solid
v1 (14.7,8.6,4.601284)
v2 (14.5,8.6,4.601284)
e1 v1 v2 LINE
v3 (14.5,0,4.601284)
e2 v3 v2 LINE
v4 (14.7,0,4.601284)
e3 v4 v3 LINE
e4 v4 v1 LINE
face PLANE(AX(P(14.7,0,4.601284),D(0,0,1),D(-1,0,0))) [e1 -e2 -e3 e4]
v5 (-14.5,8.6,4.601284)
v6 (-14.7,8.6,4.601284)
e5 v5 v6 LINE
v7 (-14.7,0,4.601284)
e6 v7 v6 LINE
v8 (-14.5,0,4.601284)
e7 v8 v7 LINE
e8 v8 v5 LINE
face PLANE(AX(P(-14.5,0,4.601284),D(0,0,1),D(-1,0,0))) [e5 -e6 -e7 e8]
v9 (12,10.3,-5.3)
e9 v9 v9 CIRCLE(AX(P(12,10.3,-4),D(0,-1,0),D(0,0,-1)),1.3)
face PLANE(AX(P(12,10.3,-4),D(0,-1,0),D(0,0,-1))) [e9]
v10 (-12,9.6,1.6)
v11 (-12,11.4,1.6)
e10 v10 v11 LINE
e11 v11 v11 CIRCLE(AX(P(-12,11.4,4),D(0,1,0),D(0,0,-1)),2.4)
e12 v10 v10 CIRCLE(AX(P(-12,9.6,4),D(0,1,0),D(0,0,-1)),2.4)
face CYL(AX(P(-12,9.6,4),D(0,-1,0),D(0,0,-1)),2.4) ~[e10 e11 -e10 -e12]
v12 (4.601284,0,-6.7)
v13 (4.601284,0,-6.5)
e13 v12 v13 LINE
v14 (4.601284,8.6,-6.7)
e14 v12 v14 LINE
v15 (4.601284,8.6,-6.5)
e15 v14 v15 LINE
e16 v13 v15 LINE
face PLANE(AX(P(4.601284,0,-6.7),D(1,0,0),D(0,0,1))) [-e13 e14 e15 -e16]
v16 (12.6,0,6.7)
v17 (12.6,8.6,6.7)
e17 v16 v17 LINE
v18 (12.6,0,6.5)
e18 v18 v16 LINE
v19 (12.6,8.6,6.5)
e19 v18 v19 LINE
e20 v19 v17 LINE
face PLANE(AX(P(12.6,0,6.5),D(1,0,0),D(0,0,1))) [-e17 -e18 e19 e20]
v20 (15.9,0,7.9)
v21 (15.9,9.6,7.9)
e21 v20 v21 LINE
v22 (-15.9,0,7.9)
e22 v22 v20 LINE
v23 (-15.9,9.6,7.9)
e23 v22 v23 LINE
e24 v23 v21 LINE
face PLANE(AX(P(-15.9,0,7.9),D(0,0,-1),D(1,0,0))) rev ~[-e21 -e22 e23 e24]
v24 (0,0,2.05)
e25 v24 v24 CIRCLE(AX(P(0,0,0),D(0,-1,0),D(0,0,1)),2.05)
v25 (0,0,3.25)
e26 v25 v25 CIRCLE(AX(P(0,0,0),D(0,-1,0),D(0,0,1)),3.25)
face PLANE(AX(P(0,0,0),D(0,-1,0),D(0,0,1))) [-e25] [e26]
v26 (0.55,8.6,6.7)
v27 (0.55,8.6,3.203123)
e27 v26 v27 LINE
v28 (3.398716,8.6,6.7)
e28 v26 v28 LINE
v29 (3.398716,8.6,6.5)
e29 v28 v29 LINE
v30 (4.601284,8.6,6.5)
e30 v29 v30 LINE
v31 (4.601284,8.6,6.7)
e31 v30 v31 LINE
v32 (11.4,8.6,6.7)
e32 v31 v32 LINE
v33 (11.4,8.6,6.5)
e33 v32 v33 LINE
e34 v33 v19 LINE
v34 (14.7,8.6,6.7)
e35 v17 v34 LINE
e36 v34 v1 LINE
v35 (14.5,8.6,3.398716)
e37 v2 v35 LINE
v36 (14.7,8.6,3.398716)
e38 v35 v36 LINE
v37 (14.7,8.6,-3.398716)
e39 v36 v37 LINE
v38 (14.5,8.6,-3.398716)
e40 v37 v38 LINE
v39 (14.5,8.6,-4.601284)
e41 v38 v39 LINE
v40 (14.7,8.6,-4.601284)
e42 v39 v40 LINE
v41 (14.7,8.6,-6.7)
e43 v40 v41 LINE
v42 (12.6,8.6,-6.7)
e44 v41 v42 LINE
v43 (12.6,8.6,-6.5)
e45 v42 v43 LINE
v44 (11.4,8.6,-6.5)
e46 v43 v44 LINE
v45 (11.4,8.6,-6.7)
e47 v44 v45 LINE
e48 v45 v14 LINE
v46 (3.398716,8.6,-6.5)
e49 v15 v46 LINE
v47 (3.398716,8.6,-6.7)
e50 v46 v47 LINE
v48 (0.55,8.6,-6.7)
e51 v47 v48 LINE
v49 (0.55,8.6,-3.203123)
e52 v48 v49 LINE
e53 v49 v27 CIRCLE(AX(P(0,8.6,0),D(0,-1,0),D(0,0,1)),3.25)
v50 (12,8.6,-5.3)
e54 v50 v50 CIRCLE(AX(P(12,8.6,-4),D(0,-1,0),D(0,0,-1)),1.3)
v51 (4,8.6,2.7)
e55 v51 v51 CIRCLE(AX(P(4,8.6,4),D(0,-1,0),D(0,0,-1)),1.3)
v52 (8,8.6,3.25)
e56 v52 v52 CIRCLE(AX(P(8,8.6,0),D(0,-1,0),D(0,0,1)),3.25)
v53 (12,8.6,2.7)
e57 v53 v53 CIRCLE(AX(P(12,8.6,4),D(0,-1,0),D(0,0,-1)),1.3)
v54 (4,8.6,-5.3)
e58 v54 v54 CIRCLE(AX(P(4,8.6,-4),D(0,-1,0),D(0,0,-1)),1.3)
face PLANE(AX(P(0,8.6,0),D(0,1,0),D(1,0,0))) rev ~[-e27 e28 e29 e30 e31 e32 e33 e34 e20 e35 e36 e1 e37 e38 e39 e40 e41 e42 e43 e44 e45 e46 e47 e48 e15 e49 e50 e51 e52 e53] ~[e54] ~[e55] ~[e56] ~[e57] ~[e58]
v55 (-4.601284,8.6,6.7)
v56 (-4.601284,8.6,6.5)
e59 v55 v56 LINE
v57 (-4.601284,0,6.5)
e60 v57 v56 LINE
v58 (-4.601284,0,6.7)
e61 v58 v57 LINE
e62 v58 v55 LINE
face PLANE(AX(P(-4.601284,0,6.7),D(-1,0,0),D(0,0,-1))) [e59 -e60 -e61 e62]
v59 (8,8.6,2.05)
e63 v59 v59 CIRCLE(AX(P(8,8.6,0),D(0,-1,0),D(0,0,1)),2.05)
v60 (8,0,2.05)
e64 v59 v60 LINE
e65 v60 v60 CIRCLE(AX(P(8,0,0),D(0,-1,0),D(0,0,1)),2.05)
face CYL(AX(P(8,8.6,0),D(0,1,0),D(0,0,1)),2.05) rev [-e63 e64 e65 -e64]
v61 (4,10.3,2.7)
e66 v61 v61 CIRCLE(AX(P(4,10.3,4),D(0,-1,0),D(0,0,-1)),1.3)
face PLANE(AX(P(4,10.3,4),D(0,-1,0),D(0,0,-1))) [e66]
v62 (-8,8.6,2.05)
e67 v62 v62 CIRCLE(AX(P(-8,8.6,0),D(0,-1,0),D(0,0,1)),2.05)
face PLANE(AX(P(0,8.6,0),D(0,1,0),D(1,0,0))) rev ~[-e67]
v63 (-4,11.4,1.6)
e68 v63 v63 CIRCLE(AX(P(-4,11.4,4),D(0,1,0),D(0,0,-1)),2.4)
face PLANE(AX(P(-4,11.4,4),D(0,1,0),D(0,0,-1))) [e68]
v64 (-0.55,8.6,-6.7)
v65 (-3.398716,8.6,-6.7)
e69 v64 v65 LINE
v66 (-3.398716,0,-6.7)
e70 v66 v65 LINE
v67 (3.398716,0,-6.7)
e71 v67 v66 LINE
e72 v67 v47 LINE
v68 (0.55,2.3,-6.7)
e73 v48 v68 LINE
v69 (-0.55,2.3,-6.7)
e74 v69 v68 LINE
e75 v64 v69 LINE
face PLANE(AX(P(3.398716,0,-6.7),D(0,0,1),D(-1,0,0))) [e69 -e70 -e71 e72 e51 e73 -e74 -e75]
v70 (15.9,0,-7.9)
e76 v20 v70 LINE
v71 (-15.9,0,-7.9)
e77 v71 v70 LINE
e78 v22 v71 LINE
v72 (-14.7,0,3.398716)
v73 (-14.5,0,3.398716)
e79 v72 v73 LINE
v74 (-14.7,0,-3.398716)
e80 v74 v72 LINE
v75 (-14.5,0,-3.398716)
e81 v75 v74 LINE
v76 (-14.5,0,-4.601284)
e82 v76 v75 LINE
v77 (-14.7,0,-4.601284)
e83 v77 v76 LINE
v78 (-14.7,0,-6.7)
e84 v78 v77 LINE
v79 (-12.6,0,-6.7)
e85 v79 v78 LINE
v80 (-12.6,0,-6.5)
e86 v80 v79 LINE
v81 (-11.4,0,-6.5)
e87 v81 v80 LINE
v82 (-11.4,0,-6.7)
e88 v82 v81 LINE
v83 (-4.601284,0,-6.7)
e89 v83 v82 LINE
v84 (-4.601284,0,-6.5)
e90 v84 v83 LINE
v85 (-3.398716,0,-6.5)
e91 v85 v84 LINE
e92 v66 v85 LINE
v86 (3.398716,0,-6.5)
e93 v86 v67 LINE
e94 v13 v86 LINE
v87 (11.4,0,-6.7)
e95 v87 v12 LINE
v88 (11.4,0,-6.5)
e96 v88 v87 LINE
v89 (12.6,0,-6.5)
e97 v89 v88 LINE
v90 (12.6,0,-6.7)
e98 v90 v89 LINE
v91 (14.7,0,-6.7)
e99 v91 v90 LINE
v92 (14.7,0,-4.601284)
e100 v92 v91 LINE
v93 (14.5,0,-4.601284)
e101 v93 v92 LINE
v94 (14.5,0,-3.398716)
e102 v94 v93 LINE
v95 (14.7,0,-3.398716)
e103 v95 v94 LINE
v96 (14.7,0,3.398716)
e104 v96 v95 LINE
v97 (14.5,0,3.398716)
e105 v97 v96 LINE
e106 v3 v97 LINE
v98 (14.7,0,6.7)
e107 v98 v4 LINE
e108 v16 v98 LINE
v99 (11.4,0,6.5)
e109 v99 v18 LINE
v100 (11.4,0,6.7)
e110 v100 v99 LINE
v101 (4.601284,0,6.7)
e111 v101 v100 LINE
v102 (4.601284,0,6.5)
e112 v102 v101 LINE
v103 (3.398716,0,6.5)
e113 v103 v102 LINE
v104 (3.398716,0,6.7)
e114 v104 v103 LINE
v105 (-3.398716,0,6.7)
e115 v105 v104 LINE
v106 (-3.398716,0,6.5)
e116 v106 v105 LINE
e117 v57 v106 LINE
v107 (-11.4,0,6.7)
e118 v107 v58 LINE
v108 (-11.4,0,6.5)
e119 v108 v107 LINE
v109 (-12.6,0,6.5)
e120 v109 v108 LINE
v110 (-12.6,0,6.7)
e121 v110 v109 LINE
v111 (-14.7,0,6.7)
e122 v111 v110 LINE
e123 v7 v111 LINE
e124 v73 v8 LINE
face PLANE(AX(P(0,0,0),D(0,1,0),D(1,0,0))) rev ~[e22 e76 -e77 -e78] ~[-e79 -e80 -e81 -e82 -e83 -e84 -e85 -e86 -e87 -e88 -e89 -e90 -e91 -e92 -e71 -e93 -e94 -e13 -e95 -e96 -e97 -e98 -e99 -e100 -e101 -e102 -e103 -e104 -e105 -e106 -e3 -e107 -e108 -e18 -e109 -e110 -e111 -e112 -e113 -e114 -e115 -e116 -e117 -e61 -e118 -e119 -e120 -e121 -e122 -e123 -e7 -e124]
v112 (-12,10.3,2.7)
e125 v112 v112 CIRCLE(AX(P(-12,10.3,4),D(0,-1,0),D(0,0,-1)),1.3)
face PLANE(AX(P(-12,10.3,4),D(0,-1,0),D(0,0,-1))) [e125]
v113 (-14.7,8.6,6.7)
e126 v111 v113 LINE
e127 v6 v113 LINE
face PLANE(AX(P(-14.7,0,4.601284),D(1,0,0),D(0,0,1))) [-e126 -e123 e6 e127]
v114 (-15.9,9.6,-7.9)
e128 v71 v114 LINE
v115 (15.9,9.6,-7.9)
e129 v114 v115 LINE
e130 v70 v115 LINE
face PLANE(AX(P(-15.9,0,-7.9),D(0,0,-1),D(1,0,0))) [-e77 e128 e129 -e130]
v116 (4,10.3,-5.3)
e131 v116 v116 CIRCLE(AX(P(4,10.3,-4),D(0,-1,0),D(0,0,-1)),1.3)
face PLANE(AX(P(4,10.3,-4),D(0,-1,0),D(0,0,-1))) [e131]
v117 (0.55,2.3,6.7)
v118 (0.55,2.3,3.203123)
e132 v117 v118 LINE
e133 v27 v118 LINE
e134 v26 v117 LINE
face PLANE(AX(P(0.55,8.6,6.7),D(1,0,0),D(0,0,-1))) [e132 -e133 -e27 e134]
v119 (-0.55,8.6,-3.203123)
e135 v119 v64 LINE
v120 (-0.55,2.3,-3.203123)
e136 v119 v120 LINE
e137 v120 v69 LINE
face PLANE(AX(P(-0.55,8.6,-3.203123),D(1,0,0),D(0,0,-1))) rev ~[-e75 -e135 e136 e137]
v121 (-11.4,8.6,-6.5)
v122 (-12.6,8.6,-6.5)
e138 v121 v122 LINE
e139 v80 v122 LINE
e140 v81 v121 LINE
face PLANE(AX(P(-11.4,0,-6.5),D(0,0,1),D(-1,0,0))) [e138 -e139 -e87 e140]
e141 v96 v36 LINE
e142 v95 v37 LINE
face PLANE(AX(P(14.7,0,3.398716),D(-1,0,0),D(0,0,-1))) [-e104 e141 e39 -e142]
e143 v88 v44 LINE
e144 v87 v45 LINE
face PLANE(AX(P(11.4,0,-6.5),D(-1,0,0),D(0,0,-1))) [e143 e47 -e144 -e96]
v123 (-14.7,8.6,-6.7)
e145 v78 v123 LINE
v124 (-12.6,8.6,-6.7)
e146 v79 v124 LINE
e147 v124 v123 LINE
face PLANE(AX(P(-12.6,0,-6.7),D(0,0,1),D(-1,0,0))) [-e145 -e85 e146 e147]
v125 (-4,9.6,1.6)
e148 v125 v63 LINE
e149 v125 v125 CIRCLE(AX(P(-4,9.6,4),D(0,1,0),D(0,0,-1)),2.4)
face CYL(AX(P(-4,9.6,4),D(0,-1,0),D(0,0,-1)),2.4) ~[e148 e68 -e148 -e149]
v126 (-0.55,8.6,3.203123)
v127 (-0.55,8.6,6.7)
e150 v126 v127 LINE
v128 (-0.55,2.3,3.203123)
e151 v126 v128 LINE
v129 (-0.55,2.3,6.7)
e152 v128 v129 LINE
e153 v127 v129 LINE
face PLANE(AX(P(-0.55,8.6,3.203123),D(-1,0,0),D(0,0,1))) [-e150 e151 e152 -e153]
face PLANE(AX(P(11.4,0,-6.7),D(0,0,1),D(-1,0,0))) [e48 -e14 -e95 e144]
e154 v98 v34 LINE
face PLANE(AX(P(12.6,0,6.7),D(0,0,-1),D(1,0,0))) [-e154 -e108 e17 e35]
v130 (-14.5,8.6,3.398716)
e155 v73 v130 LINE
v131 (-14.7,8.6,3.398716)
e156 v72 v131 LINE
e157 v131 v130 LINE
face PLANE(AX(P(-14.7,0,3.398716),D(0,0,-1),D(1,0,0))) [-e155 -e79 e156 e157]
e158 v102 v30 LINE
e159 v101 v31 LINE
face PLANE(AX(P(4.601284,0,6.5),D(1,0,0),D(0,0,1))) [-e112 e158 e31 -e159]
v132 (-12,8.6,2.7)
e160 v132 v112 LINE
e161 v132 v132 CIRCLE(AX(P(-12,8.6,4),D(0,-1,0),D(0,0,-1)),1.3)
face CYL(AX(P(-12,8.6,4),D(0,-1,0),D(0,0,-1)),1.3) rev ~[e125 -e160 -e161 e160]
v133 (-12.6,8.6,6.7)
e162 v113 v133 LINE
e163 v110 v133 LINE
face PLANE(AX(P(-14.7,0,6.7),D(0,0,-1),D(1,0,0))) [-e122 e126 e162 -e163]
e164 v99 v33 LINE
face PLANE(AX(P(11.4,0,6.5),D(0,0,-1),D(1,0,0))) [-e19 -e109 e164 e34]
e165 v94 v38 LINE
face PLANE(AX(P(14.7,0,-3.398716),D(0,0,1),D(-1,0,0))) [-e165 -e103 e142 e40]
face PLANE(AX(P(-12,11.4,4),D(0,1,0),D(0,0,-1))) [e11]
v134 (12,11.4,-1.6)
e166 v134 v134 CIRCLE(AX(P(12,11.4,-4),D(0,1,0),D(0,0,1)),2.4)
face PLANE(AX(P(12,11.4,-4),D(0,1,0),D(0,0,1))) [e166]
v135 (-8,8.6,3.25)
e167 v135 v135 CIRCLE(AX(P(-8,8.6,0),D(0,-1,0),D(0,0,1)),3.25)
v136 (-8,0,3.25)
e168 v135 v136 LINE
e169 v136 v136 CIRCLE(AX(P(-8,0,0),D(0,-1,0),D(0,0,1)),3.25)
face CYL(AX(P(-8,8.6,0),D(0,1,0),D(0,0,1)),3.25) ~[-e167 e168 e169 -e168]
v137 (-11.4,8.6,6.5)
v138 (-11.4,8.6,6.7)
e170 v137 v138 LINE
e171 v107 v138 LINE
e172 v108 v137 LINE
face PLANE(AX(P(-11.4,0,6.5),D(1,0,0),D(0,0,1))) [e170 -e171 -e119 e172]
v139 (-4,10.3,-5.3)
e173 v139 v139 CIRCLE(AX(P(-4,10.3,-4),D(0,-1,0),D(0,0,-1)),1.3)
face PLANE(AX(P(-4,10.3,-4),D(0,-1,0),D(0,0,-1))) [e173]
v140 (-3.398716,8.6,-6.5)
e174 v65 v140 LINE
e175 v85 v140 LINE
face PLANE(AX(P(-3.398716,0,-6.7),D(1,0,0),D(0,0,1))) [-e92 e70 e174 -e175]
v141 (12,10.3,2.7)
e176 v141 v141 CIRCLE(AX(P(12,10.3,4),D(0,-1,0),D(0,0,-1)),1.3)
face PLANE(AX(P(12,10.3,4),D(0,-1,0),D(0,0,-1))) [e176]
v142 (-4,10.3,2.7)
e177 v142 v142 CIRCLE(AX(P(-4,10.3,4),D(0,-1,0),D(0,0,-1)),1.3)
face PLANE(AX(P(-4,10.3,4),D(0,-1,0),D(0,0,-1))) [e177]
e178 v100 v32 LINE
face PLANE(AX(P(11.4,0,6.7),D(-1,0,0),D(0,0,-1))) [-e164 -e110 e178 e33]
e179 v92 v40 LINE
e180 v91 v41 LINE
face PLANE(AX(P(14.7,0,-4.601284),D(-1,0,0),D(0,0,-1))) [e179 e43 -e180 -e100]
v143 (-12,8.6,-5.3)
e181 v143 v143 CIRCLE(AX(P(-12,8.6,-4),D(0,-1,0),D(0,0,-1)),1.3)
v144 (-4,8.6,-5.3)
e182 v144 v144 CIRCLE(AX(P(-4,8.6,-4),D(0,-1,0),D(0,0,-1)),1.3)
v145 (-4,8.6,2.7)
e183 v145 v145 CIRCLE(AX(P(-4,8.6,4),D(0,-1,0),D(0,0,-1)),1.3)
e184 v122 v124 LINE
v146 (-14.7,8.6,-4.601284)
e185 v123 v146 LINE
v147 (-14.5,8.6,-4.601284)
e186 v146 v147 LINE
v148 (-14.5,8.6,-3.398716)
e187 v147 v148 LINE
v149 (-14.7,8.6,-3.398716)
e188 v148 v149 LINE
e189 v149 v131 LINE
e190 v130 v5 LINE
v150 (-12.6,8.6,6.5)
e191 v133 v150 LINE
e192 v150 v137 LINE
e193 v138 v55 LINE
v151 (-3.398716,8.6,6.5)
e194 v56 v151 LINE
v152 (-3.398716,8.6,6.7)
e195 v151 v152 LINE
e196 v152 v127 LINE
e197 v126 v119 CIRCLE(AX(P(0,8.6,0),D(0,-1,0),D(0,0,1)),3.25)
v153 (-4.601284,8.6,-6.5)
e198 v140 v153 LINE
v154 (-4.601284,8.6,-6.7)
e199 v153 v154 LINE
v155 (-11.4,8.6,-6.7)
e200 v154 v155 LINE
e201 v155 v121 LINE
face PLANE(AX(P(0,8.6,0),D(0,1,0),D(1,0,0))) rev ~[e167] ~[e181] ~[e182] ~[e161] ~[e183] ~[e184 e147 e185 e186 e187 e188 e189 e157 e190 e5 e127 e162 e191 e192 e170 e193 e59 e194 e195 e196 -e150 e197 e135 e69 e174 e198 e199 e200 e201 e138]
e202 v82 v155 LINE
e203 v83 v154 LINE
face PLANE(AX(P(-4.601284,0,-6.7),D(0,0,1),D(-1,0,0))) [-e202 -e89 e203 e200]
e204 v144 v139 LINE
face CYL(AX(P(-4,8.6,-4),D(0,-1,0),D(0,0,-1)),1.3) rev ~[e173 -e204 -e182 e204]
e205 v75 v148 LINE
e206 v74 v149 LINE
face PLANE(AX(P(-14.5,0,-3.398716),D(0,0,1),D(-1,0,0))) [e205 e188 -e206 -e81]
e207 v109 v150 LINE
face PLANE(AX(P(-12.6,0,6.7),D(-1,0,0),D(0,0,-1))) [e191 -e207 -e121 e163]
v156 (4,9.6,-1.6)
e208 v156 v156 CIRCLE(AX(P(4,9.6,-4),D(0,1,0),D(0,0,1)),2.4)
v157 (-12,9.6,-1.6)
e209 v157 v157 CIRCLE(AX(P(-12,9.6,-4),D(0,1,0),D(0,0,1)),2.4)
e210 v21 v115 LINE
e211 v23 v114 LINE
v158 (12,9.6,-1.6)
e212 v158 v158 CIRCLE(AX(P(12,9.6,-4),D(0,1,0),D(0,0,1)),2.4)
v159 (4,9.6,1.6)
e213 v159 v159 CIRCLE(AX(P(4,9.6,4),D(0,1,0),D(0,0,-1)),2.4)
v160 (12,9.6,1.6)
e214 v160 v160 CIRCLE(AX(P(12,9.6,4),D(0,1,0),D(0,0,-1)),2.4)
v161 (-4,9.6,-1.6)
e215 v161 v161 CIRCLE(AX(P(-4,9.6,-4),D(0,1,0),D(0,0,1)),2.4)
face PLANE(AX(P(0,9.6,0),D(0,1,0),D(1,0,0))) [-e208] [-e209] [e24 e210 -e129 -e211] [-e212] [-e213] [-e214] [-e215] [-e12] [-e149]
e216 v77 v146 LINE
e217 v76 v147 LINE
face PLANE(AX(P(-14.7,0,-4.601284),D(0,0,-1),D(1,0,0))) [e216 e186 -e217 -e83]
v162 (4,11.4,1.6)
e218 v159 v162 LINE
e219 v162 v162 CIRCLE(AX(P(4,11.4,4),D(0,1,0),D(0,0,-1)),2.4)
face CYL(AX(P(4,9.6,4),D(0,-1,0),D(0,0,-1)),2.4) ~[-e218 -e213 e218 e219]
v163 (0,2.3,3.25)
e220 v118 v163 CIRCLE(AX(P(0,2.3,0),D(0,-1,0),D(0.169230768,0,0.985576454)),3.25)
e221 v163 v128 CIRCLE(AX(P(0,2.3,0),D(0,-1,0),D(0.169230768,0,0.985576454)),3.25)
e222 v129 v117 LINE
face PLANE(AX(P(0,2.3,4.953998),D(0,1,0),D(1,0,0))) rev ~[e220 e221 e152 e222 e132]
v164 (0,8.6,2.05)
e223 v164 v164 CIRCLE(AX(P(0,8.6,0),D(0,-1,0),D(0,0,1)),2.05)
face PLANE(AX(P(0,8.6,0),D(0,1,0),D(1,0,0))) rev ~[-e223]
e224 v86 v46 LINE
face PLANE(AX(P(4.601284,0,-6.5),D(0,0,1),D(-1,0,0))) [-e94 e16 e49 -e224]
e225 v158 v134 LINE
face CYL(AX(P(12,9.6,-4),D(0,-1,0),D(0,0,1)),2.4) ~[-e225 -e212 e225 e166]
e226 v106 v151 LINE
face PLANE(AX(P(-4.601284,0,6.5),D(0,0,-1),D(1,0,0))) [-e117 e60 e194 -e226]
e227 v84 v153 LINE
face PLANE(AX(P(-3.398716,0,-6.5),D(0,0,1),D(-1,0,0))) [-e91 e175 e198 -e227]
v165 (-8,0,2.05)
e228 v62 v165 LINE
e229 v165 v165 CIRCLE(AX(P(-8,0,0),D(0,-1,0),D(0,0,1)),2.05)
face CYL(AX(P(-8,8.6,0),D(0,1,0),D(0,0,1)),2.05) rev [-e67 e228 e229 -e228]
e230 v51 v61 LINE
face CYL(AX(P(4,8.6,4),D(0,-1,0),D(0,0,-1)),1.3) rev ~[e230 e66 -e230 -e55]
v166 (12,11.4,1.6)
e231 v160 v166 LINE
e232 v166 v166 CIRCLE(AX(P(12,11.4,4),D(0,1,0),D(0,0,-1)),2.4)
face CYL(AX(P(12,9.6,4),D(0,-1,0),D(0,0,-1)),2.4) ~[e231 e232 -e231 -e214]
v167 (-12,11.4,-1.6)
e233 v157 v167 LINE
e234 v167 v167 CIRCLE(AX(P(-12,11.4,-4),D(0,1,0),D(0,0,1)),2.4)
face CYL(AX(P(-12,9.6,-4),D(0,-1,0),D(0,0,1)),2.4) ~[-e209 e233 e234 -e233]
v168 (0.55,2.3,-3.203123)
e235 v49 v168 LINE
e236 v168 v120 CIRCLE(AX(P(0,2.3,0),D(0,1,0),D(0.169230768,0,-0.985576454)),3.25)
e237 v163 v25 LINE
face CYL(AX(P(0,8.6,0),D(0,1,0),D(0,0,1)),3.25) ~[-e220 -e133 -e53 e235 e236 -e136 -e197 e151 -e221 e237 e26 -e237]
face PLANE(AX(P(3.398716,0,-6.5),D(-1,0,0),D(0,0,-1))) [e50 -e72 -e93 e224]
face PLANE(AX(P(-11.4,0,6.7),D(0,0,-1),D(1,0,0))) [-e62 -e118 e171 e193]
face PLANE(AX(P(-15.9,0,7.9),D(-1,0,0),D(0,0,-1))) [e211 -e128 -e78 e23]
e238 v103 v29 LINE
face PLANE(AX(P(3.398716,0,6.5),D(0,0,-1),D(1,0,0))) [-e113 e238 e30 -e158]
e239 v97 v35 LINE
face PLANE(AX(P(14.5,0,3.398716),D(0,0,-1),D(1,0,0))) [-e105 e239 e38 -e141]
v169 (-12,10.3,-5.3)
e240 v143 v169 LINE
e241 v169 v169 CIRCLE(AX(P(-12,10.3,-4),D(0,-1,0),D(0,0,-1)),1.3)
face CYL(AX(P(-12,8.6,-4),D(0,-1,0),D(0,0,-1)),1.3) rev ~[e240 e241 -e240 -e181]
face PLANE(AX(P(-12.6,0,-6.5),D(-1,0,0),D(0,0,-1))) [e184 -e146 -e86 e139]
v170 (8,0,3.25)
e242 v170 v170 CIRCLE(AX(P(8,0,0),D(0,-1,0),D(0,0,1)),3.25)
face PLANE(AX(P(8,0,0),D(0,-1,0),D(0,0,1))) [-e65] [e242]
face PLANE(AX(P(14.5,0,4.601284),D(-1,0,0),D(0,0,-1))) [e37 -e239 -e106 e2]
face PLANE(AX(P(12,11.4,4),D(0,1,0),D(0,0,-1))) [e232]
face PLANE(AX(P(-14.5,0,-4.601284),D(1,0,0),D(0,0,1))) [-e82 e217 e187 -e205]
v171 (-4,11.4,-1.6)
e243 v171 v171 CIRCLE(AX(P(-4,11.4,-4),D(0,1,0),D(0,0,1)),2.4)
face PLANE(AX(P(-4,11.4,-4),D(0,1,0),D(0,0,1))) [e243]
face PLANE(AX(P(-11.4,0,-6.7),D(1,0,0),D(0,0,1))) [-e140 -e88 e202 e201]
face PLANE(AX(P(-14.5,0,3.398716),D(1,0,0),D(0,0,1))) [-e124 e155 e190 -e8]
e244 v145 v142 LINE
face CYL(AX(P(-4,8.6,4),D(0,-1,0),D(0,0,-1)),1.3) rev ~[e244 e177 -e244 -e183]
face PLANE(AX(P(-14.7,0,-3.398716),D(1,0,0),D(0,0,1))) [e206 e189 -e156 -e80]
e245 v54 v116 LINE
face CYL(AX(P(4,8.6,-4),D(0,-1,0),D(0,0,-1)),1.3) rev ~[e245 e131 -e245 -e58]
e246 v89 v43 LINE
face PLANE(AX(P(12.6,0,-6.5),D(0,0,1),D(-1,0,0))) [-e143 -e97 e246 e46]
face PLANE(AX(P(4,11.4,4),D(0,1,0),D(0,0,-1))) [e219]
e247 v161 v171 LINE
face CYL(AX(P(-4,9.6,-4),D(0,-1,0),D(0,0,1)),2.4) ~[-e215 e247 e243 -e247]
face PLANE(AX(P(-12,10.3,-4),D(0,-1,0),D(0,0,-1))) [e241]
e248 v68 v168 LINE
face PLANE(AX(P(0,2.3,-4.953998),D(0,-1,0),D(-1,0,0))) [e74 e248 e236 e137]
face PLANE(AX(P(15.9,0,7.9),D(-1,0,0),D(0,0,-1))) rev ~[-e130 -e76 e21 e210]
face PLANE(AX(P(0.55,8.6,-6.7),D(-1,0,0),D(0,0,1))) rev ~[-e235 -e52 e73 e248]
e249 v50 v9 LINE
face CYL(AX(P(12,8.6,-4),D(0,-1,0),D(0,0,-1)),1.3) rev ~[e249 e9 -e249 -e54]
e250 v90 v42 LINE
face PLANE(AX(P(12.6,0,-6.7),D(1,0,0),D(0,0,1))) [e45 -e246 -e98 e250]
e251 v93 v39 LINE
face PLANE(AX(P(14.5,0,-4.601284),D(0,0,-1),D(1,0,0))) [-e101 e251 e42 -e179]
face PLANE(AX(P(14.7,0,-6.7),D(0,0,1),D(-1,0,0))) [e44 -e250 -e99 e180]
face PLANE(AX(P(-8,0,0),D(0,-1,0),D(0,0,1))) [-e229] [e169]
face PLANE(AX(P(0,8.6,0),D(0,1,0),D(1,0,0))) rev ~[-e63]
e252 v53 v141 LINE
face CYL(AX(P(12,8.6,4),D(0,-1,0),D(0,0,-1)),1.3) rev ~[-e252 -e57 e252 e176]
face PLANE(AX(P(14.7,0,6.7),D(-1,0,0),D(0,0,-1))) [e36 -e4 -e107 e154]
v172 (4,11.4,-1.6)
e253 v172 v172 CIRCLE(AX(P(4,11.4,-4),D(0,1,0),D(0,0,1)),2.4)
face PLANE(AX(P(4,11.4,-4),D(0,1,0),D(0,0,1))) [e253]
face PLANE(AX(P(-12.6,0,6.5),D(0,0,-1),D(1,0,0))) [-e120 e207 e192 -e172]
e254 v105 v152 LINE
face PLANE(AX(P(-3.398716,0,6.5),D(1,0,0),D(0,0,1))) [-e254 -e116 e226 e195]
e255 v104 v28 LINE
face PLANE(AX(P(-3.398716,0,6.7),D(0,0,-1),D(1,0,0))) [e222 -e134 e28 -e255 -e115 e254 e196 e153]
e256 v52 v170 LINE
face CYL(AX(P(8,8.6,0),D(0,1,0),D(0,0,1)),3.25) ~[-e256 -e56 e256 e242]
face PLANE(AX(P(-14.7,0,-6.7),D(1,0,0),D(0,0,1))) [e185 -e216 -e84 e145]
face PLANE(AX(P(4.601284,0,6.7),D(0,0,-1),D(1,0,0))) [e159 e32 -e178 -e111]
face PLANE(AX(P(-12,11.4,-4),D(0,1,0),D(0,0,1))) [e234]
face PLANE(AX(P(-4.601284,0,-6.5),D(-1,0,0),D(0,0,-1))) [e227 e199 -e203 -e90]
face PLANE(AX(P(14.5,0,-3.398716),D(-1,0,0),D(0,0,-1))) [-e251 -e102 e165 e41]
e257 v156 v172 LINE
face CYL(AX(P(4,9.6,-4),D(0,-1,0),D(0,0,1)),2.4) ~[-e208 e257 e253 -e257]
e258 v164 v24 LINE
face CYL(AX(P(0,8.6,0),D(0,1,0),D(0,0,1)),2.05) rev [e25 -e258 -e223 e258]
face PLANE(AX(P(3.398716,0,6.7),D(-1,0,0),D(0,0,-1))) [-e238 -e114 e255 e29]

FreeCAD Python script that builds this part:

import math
import FreeCAD as App
import Part
import Sketcher
Q = App.Units.Quantity

doc = App.newDocument("Part")
params = doc.addObject("Spreadsheet::Sheet", "Params")
for row, (alias, value) in enumerate([
    ("sketch1_width", "31.8 mm"),
    ("sketch1_height", "15.8 mm"),
    ("pad1_length", "9.6 mm"),
    ("sketch2_diameter", "4.8 mm"),
    ("pad2_length", "1.8 mm"),
    ("sketch3_width", "0.2 mm"),
    ("sketch3_width2", "2.1 mm"),
    ("sketch3_width3", "1.2 mm"),
    ("pocket1_length", "8.6 mm"),
    ("sketch4_diameter", "2.6 mm"),
    ("pocket2_length", "1.7 mm"),
    ("sketch5_diameter", "6.5 mm"),
    ("sketch5_diameter2", "4.1 mm"),
    ("pad3_length", "8.6 mm"),
    ("sketch6_radius", "3.25 mm"),
    ("sketch6_width", "1.1 mm"),
    ("pad4_length", "6.3 mm"),
], start=1):
    params.set(f"A{row}", alias)
    params.set(f"B{row}", "=" + value)
    params.setAlias(f"B{row}", alias)

body = doc.addObject("PartDesign::Body", "Body")

# Sketch on XZ plane
sketch1 = body.newObject("Sketcher::SketchObject", "Sketch")
sketch1.AttachmentSupport = (doc.getObject("XZ_Plane"), [""])
sketch1.MapMode = "FlatFace"
sketch1.addGeometry(Part.LineSegment(App.Vector(-16, -8, 0), App.Vector(-16, 8, 0)), False)
sketch1.addGeometry(Part.LineSegment(App.Vector(-16, 8, 0), App.Vector(16, 8, 0)), False)
sketch1.addGeometry(Part.LineSegment(App.Vector(16, 8, 0), App.Vector(16, -8, 0)), False)
sketch1.addGeometry(Part.LineSegment(App.Vector(16, -8, 0), App.Vector(-16, -8, 0)), False)
sketch1.addConstraint(Sketcher.Constraint("Coincident", 0, 2, 1, 1))
sketch1.addConstraint(Sketcher.Constraint("Coincident", 1, 2, 2, 1))
sketch1.addConstraint(Sketcher.Constraint("Coincident", 2, 2, 3, 1))
sketch1.addConstraint(Sketcher.Constraint("Coincident", 3, 2, 0, 1))
sketch1.addConstraint(Sketcher.Constraint("Vertical", 0))
sketch1.addConstraint(Sketcher.Constraint("Horizontal", 1))
sketch1.addConstraint(Sketcher.Constraint("Vertical", 2))
sketch1.addConstraint(Sketcher.Constraint("Horizontal", 3))
sketch1.addConstraint(Sketcher.Constraint("Symmetric", 0, 2, 2, 2, -1, 1))
sketch1.addConstraint(Sketcher.Constraint("DistanceX", 1, 1, 1, 2, Q("31.8 mm")))
sketch1.addConstraint(Sketcher.Constraint("DistanceY", 0, 1, 0, 2, Q("15.8 mm")))
sketch1.setExpression("Constraints[9]", "Params.sketch1_width")
sketch1.setExpression("Constraints[10]", "Params.sketch1_height")
pad1 = body.newObject("PartDesign::Pad", "Pad")
pad1.Profile = sketch1
pad1.setExpression("Length", "Params.pad1_length")
pad1.Reversed = True

# Sketch on XZ plane
sketch2 = body.newObject("Sketcher::SketchObject", "Sketch001")
sketch2.AttachmentSupport = (doc.getObject("XZ_Plane"), [""])
sketch2.MapMode = "FlatFace"
sketch2.AttachmentOffset = App.Placement(App.Vector(0, 0, -9.6), App.Rotation())
sketch2.addGeometry(Part.Circle(App.Vector(-4, -4, 0), App.Vector(0, 0, 1), 2.4), False)
sketch2.addGeometry(Part.Circle(App.Vector(-12, -4, 0), App.Vector(0, 0, 1), 2.4), False)
sketch2.addGeometry(Part.Circle(App.Vector(4, -4, 0), App.Vector(0, 0, 1), 2.4), False)
sketch2.addGeometry(Part.Circle(App.Vector(12, -4, 0), App.Vector(0, 0, 1), 2.4), False)
sketch2.addGeometry(Part.Circle(App.Vector(12, 4, 0), App.Vector(0, 0, 1), 2.4), False)
sketch2.addGeometry(Part.Circle(App.Vector(4, 4, 0), App.Vector(0, 0, 1), 2.4), False)
sketch2.addGeometry(Part.Circle(App.Vector(-4, 4, 0), App.Vector(0, 0, 1), 2.4), False)
sketch2.addGeometry(Part.Circle(App.Vector(-12, 4, 0), App.Vector(0, 0, 1), 2.4), False)
sketch2.addConstraint(Sketcher.Constraint("Equal", 0, 1))
sketch2.addConstraint(Sketcher.Constraint("Equal", 1, 2))
sketch2.addConstraint(Sketcher.Constraint("Equal", 2, 3))
sketch2.addConstraint(Sketcher.Constraint("Equal", 3, 4))
sketch2.addConstraint(Sketcher.Constraint("Equal", 4, 5))
sketch2.addConstraint(Sketcher.Constraint("Equal", 5, 6))
sketch2.addConstraint(Sketcher.Constraint("Equal", 6, 7))
sketch2.addConstraint(Sketcher.Constraint("Symmetric", 1, 3, 4, 3, -1, 1))
sketch2.addConstraint(Sketcher.Constraint("Symmetric", 0, 3, 5, 3, -1, 1))
sketch2.addConstraint(Sketcher.Constraint("Symmetric", 2, 3, 6, 3, -1, 1))
sketch2.addConstraint(Sketcher.Constraint("Symmetric", 3, 3, 7, 3, -1, 1))
sketch2.addConstraint(Sketcher.Constraint("Symmetric", 0, 3, 2, 3, -2))
sketch2.addConstraint(Sketcher.Constraint("Symmetric", 1, 3, 3, 3, -2))
sketch2.addConstraint(Sketcher.Constraint("Horizontal", 0, 3, 1, 3))
sketch2.addConstraint(Sketcher.Constraint("Diameter", 0, Q("4.8 mm")))
sketch2.addConstraint(Sketcher.Constraint("DistanceX", 0, 3, -1, 1, Q("4 mm")))
sketch2.addConstraint(Sketcher.Constraint("DistanceY", 0, 3, -1, 1, Q("4 mm")))
sketch2.addConstraint(Sketcher.Constraint("DistanceX", 1, 3, -1, 1, Q("12 mm")))
sketch2.setExpression("Constraints[14]", "Params.sketch2_diameter")
pad2 = body.newObject("PartDesign::Pad", "Pad001")
pad2.Profile = sketch2
pad2.setExpression("Length", "Params.pad2_length")
pad2.Reversed = True

# Sketch on XZ plane
sketch3 = body.newObject("Sketcher::SketchObject", "Sketch002")
sketch3.AttachmentSupport = (doc.getObject("XZ_Plane"), [""])
sketch3.MapMode = "FlatFace"
sketch3.addGeometry(Part.LineSegment(App.Vector(-14.7, 3.4, 0), App.Vector(-14.7, -3.4, 0)), False)
sketch3.addGeometry(Part.LineSegment(App.Vector(-14.7, -3.4, 0), App.Vector(-14.5, -3.4, 0)), False)
sketch3.addGeometry(Part.LineSegment(App.Vector(-14.5, -3.4, 0), App.Vector(-14.5, -4.6, 0)), False)
sketch3.addGeometry(Part.LineSegment(App.Vector(-14.5, -4.6, 0), App.Vector(-14.7, -4.6, 0)), False)
sketch3.addGeometry(Part.LineSegment(App.Vector(-14.7, -4.6, 0), App.Vector(-14.7, -6.7, 0)), False)
sketch3.addGeometry(Part.LineSegment(App.Vector(-14.7, -6.7, 0), App.Vector(-12.6, -6.7, 0)), False)
sketch3.addGeometry(Part.LineSegment(App.Vector(-12.6, -6.7, 0), App.Vector(-12.6, -6.5, 0)), False)
sketch3.addGeometry(Part.LineSegment(App.Vector(-12.6, -6.5, 0), App.Vector(-11.4, -6.5, 0)), False)
sketch3.addGeometry(Part.LineSegment(App.Vector(-11.4, -6.5, 0), App.Vector(-11.4, -6.7, 0)), False)
sketch3.addGeometry(Part.LineSegment(App.Vector(-11.4, -6.7, 0), App.Vector(-4.6, -6.7, 0)), False)
sketch3.addGeometry(Part.LineSegment(App.Vector(-4.6, -6.7, 0), App.Vector(-4.6, -6.5, 0)), False)
sketch3.addGeometry(Part.LineSegment(App.Vector(-4.6, -6.5, 0), App.Vector(-3.4, -6.5, 0)), False)
sketch3.addGeometry(Part.LineSegment(App.Vector(-3.4, -6.5, 0), App.Vector(-3.4, -6.7, 0)), False)
sketch3.addGeometry(Part.LineSegment(App.Vector(-3.4, -6.7, 0), App.Vector(3.4, -6.7, 0)), False)
sketch3.addGeometry(Part.LineSegment(App.Vector(3.4, -6.7, 0), App.Vector(3.4, -6.5, 0)), False)
sketch3.addGeometry(Part.LineSegment(App.Vector(3.4, -6.5, 0), App.Vector(4.6, -6.5, 0)), False)
sketch3.addGeometry(Part.LineSegment(App.Vector(4.6, -6.5, 0), App.Vector(4.6, -6.7, 0)), False)
sketch3.addGeometry(Part.LineSegment(App.Vector(4.6, -6.7, 0), App.Vector(11.4, -6.7, 0)), False)
sketch3.addGeometry(Part.LineSegment(App.Vector(11.4, -6.7, 0), App.Vector(11.4, -6.5, 0)), False)
sketch3.addGeometry(Part.LineSegment(App.Vector(11.4, -6.5, 0), App.Vector(12.6, -6.5, 0)), False)
sketch3.addGeometry(Part.LineSegment(App.Vector(12.6, -6.5, 0), App.Vector(12.6, -6.7, 0)), False)
sketch3.addGeometry(Part.LineSegment(App.Vector(12.6, -6.7, 0), App.Vector(14.7, -6.7, 0)), False)
sketch3.addGeometry(Part.LineSegment(App.Vector(14.7, -6.7, 0), App.Vector(14.7, -4.6, 0)), False)
sketch3.addGeometry(Part.LineSegment(App.Vector(14.7, -4.6, 0), App.Vector(14.5, -4.6, 0)), False)
sketch3.addGeometry(Part.LineSegment(App.Vector(14.5, -4.6, 0), App.Vector(14.5, -3.4, 0)), False)
sketch3.addGeometry(Part.LineSegment(App.Vector(14.5, -3.4, 0), App.Vector(14.7, -3.4, 0)), False)
sketch3.addGeometry(Part.LineSegment(App.Vector(14.7, -3.4, 0), App.Vector(14.7, 3.4, 0)), False)
sketch3.addGeometry(Part.LineSegment(App.Vector(14.7, 3.4, 0), App.Vector(14.5, 3.4, 0)), False)
sketch3.addGeometry(Part.LineSegment(App.Vector(14.5, 3.4, 0), App.Vector(14.5, 4.6, 0)), False)
sketch3.addGeometry(Part.LineSegment(App.Vector(14.5, 4.6, 0), App.Vector(14.7, 4.6, 0)), False)
sketch3.addGeometry(Part.LineSegment(App.Vector(14.7, 4.6, 0), App.Vector(14.7, 6.7, 0)), False)
sketch3.addGeometry(Part.LineSegment(App.Vector(14.7, 6.7, 0), App.Vector(12.6, 6.7, 0)), False)
sketch3.addGeometry(Part.LineSegment(App.Vector(12.6, 6.7, 0), App.Vector(12.6, 6.5, 0)), False)
sketch3.addGeometry(Part.LineSegment(App.Vector(12.6, 6.5, 0), App.Vector(11.4, 6.5, 0)), False)
sketch3.addGeometry(Part.LineSegment(App.Vector(11.4, 6.5, 0), App.Vector(11.4, 6.7, 0)), False)
sketch3.addGeometry(Part.LineSegment(App.Vector(11.4, 6.7, 0), App.Vector(4.6, 6.7, 0)), False)
sketch3.addGeometry(Part.LineSegment(App.Vector(4.6, 6.7, 0), App.Vector(4.6, 6.5, 0)), False)
sketch3.addGeometry(Part.LineSegment(App.Vector(4.6, 6.5, 0), App.Vector(3.4, 6.5, 0)), False)
sketch3.addGeometry(Part.LineSegment(App.Vector(3.4, 6.5, 0), App.Vector(3.4, 6.7, 0)), False)
sketch3.addGeometry(Part.LineSegment(App.Vector(3.4, 6.7, 0), App.Vector(-3.4, 6.7, 0)), False)
sketch3.addGeometry(Part.LineSegment(App.Vector(-3.4, 6.7, 0), App.Vector(-3.4, 6.5, 0)), False)
sketch3.addGeometry(Part.LineSegment(App.Vector(-3.4, 6.5, 0), App.Vector(-4.6, 6.5, 0)), False)
sketch3.addGeometry(Part.LineSegment(App.Vector(-4.6, 6.5, 0), App.Vector(-4.6, 6.7, 0)), False)
sketch3.addGeometry(Part.LineSegment(App.Vector(-4.6, 6.7, 0), App.Vector(-11.4, 6.7, 0)), False)
sketch3.addGeometry(Part.LineSegment(App.Vector(-11.4, 6.7, 0), App.Vector(-11.4, 6.5, 0)), False)
sketch3.addGeometry(Part.LineSegment(App.Vector(-11.4, 6.5, 0), App.Vector(-12.6, 6.5, 0)), False)
sketch3.addGeometry(Part.LineSegment(App.Vector(-12.6, 6.5, 0), App.Vector(-12.6, 6.7, 0)), False)
sketch3.addGeometry(Part.LineSegment(App.Vector(-12.6, 6.7, 0), App.Vector(-14.7, 6.7, 0)), False)
sketch3.addGeometry(Part.LineSegment(App.Vector(-14.7, 6.7, 0), App.Vector(-14.7, 4.6, 0)), False)
sketch3.addGeometry(Part.LineSegment(App.Vector(-14.7, 4.6, 0), App.Vector(-14.5, 4.6, 0)), False)
sketch3.addGeometry(Part.LineSegment(App.Vector(-14.5, 4.6, 0), App.Vector(-14.5, 3.4, 0)), False)
sketch3.addGeometry(Part.LineSegment(App.Vector(-14.5, 3.4, 0), App.Vector(-14.7, 3.4, 0)), False)
sketch3.addConstraint(Sketcher.Constraint("Coincident", 0, 2, 1, 1))
sketch3.addConstraint(Sketcher.Constraint("Coincident", 1, 2, 2, 1))
sketch3.addConstraint(Sketcher.Constraint("Coincident", 2, 2, 3, 1))
sketch3.addConstraint(Sketcher.Constraint("Coincident", 3, 2, 4, 1))
sketch3.addConstraint(Sketcher.Constraint("Coincident", 4, 2, 5, 1))
sketch3.addConstraint(Sketcher.Constraint("Coincident", 5, 2, 6, 1))
sketch3.addConstraint(Sketcher.Constraint("Coincident", 6, 2, 7, 1))
sketch3.addConstraint(Sketcher.Constraint("Coincident", 7, 2, 8, 1))
sketch3.addConstraint(Sketcher.Constraint("Coincident", 8, 2, 9, 1))
sketch3.addConstraint(Sketcher.Constraint("Coincident", 9, 2, 10, 1))
sketch3.addConstraint(Sketcher.Constraint("Coincident", 10, 2, 11, 1))
sketch3.addConstraint(Sketcher.Constraint("Coincident", 11, 2, 12, 1))
sketch3.addConstraint(Sketcher.Constraint("Coincident", 12, 2, 13, 1))
sketch3.addConstraint(Sketcher.Constraint("Coincident", 13, 2, 14, 1))
sketch3.addConstraint(Sketcher.Constraint("Coincident", 14, 2, 15, 1))
sketch3.addConstraint(Sketcher.Constraint("Coincident", 15, 2, 16, 1))
sketch3.addConstraint(Sketcher.Constraint("Coincident", 16, 2, 17, 1))
sketch3.addConstraint(Sketcher.Constraint("Coincident", 17, 2, 18, 1))
sketch3.addConstraint(Sketcher.Constraint("Coincident", 18, 2, 19, 1))
sketch3.addConstraint(Sketcher.Constraint("Coincident", 19, 2, 20, 1))
sketch3.addConstraint(Sketcher.Constraint("Coincident", 20, 2, 21, 1))
sketch3.addConstraint(Sketcher.Constraint("Coincident", 21, 2, 22, 1))
sketch3.addConstraint(Sketcher.Constraint("Coincident", 22, 2, 23, 1))
sketch3.addConstraint(Sketcher.Constraint("Coincident", 23, 2, 24, 1))
sketch3.addConstraint(Sketcher.Constraint("Coincident", 24, 2, 25, 1))
sketch3.addConstraint(Sketcher.Constraint("Coincident", 25, 2, 26, 1))
sketch3.addConstraint(Sketcher.Constraint("Coincident", 26, 2, 27, 1))
sketch3.addConstraint(Sketcher.Constraint("Coincident", 27, 2, 28, 1))
sketch3.addConstraint(Sketcher.Constraint("Coincident", 28, 2, 29, 1))
sketch3.addConstraint(Sketcher.Constraint("Coincident", 29, 2, 30, 1))
sketch3.addConstraint(Sketcher.Constraint("Coincident", 30, 2, 31, 1))
sketch3.addConstraint(Sketcher.Constraint("Coincident", 31, 2, 32, 1))
sketch3.addConstraint(Sketcher.Constraint("Coincident", 32, 2, 33, 1))
sketch3.addConstraint(Sketcher.Constraint("Coincident", 33, 2, 34, 1))
sketch3.addConstraint(Sketcher.Constraint("Coincident", 34, 2, 35, 1))
sketch3.addConstraint(Sketcher.Constraint("Coincident", 35, 2, 36, 1))
sketch3.addConstraint(Sketcher.Constraint("Coincident", 36, 2, 37, 1))
sketch3.addConstraint(Sketcher.Constraint("Coincident", 37, 2, 38, 1))
sketch3.addConstraint(Sketcher.Constraint("Coincident", 38, 2, 39, 1))
sketch3.addConstraint(Sketcher.Constraint("Coincident", 39, 2, 40, 1))
sketch3.addConstraint(Sketcher.Constraint("Coincident", 40, 2, 41, 1))
sketch3.addConstraint(Sketcher.Constraint("Coincident", 41, 2, 42, 1))
sketch3.addConstraint(Sketcher.Constraint("Coincident", 42, 2, 43, 1))
sketch3.addConstraint(Sketcher.Constraint("Coincident", 43, 2, 44, 1))
sketch3.addConstraint(Sketcher.Constraint("Coincident", 44, 2, 45, 1))
sketch3.addConstraint(Sketcher.Constraint("Coincident", 45, 2, 46, 1))
sketch3.addConstraint(Sketcher.Constraint("Coincident", 46, 2, 47, 1))
sketch3.addConstraint(Sketcher.Constraint("Coincident", 47, 2, 48, 1))
sketch3.addConstraint(Sketcher.Constraint("Coincident", 48, 2, 49, 1))
sketch3.addConstraint(Sketcher.Constraint("Coincident", 49, 2, 50, 1))
sketch3.addConstraint(Sketcher.Constraint("Coincident", 50, 2, 51, 1))
sketch3.addConstraint(Sketcher.Constraint("Coincident", 51, 2, 0, 1))
sketch3.addConstraint(Sketcher.Constraint("Vertical", 0))
sketch3.addConstraint(Sketcher.Constraint("Horizontal", 1))
sketch3.addConstraint(Sketcher.Constraint("Vertical", 2))
sketch3.addConstraint(Sketcher.Constraint("Horizontal", 3))
sketch3.addConstraint(Sketcher.Constraint("Vertical", 4))
sketch3.addConstraint(Sketcher.Constraint("Horizontal", 5))
sketch3.addConstraint(Sketcher.Constraint("Vertical", 6))
sketch3.addConstraint(Sketcher.Constraint("Horizontal", 7))
sketch3.addConstraint(Sketcher.Constraint("Vertical", 8))
sketch3.addConstraint(Sketcher.Constraint("Horizontal", 9))
sketch3.addConstraint(Sketcher.Constraint("Vertical", 10))
sketch3.addConstraint(Sketcher.Constraint("Horizontal", 11))
sketch3.addConstraint(Sketcher.Constraint("Vertical", 12))
sketch3.addConstraint(Sketcher.Constraint("Horizontal", 13))
sketch3.addConstraint(Sketcher.Constraint("Vertical", 14))
sketch3.addConstraint(Sketcher.Constraint("Horizontal", 15))
sketch3.addConstraint(Sketcher.Constraint("Vertical", 16))
sketch3.addConstraint(Sketcher.Constraint("Horizontal", 17))
sketch3.addConstraint(Sketcher.Constraint("Vertical", 18))
sketch3.addConstraint(Sketcher.Constraint("Horizontal", 19))
sketch3.addConstraint(Sketcher.Constraint("Vertical", 20))
sketch3.addConstraint(Sketcher.Constraint("Horizontal", 21))
sketch3.addConstraint(Sketcher.Constraint("Vertical", 22))
sketch3.addConstraint(Sketcher.Constraint("Horizontal", 23))
sketch3.addConstraint(Sketcher.Constraint("Vertical", 24))
sketch3.addConstraint(Sketcher.Constraint("Horizontal", 25))
sketch3.addConstraint(Sketcher.Constraint("Vertical", 26))
sketch3.addConstraint(Sketcher.Constraint("Horizontal", 27))
sketch3.addConstraint(Sketcher.Constraint("Vertical", 28))
sketch3.addConstraint(Sketcher.Constraint("Horizontal", 29))
sketch3.addConstraint(Sketcher.Constraint("Vertical", 30))
sketch3.addConstraint(Sketcher.Constraint("Horizontal", 31))
sketch3.addConstraint(Sketcher.Constraint("Vertical", 32))
sketch3.addConstraint(Sketcher.Constraint("Horizontal", 33))
sketch3.addConstraint(Sketcher.Constraint("Vertical", 34))
sketch3.addConstraint(Sketcher.Constraint("Horizontal", 35))
sketch3.addConstraint(Sketcher.Constraint("Vertical", 36))
sketch3.addConstraint(Sketcher.Constraint("Horizontal", 37))
sketch3.addConstraint(Sketcher.Constraint("Vertical", 38))
sketch3.addConstraint(Sketcher.Constraint("Horizontal", 39))
sketch3.addConstraint(Sketcher.Constraint("Vertical", 40))
sketch3.addConstraint(Sketcher.Constraint("Horizontal", 41))
sketch3.addConstraint(Sketcher.Constraint("Vertical", 42))
sketch3.addConstraint(Sketcher.Constraint("Horizontal", 43))
sketch3.addConstraint(Sketcher.Constraint("Vertical", 44))
sketch3.addConstraint(Sketcher.Constraint("Horizontal", 45))
sketch3.addConstraint(Sketcher.Constraint("Vertical", 46))
sketch3.addConstraint(Sketcher.Constraint("Horizontal", 47))
sketch3.addConstraint(Sketcher.Constraint("Vertical", 48))
sketch3.addConstraint(Sketcher.Constraint("Horizontal", 49))
sketch3.addConstraint(Sketcher.Constraint("Vertical", 50))
sketch3.addConstraint(Sketcher.Constraint("Horizontal", 51))
sketch3.addConstraint(Sketcher.Constraint("Symmetric", 0, 2, 26, 2, -1, 1))
sketch3.addConstraint(Sketcher.Constraint("Symmetric", 2, 2, 28, 2, -1, 1))
sketch3.addConstraint(Sketcher.Constraint("Symmetric", 4, 2, 30, 2, -1, 1))
sketch3.addConstraint(Sketcher.Constraint("Symmetric", 6, 2, 32, 2, -1, 1))
sketch3.addConstraint(Sketcher.Constraint("Symmetric", 8, 2, 34, 2, -1, 1))
sketch3.addConstraint(Sketcher.Constraint("Symmetric", 10, 2, 36, 2, -1, 1))
sketch3.addConstraint(Sketcher.Constraint("Symmetric", 12, 2, 38, 2, -1, 1))
sketch3.addConstraint(Sketcher.Constraint("Symmetric", 14, 2, 40, 2, -1, 1))
sketch3.addConstraint(Sketcher.Constraint("Symmetric", 16, 2, 42, 2, -1, 1))
sketch3.addConstraint(Sketcher.Constraint("Symmetric", 18, 2, 44, 2, -1, 1))
sketch3.addConstraint(Sketcher.Constraint("Symmetric", 20, 2, 46, 2, -1, 1))
sketch3.addConstraint(Sketcher.Constraint("Symmetric", 22, 2, 48, 2, -1, 1))
sketch3.addConstraint(Sketcher.Constraint("Symmetric", 24, 2, 50, 2, -1, 1))
sketch3.addConstraint(Sketcher.Constraint("Symmetric", 11, 2, 14, 2, -2))
sketch3.addConstraint(Sketcher.Constraint("Symmetric", 9, 2, 16, 2, -2))
sketch3.addConstraint(Sketcher.Constraint("Symmetric", 7, 2, 18, 2, -2))
sketch3.addConstraint(Sketcher.Constraint("Symmetric", 5, 2, 20, 2, -2))
sketch3.addConstraint(Sketcher.Constraint("Symmetric", 3, 2, 22, 2, -2))
sketch3.addConstraint(Sketcher.Constraint("Symmetric", 1, 2, 24, 2, -2))
sketch3.addConstraint(Sketcher.Constraint("Horizontal", 5, 2, 8, 2))
sketch3.addConstraint(Sketcher.Constraint("Horizontal", 7, 2, 10, 2))
sketch3.addConstraint(Sketcher.Constraint("Horizontal", 9, 2, 12, 2))
sketch3.addConstraint(Sketcher.Constraint("Vertical", 0, 2, 3, 2))
sketch3.addConstraint(Sketcher.Constraint("Equal", 39, 0))
sketch3.addConstraint(Sketcher.Constraint("Equal", 41, 2))
sketch3.addConstraint(Sketcher.Constraint("Equal", 51, 6))
sketch3.addConstraint(Sketcher.Constraint("DistanceX", 1, 1, 1, 2, Q("0.2 mm")))
sketch3.addConstraint(Sketcher.Constraint("DistanceX", 5, 1, 5, 2, Q("2.1 mm")))
sketch3.addConstraint(Sketcher.Constraint("DistanceX", 7, 1, 7, 2, Q("1.2 mm")))
sketch3.addConstraint(Sketcher.Constraint("DistanceX", 9, 2, 13, 2, Q("8 mm")))
sketch3.addConstraint(Sketcher.Constraint("DistanceX", 0, 2, -1, 1, Q("14.7 mm")))
sketch3.addConstraint(Sketcher.Constraint("DistanceY", 4, 2, -1, 1, Q("6.7 mm")))
sketch3.addConstraint(Sketcher.Constraint("DistanceX", 9, 1, 9, 2, Q("6.798716 mm")))
sketch3.setExpression("Constraints[130]", "Params.sketch3_width")
sketch3.setExpression("Constraints[131]", "Params.sketch3_width2")
sketch3.setExpression("Constraints[132]", "Params.sketch3_width3")
pocket1 = body.newObject("PartDesign::Pocket", "Pocket")
pocket1.Profile = sketch3
pocket1.setExpression("Length", "Params.pocket1_length")

# Sketch on XZ plane
sketch4 = body.newObject("Sketcher::SketchObject", "Sketch003")
sketch4.AttachmentSupport = (doc.getObject("XZ_Plane"), [""])
sketch4.MapMode = "FlatFace"
sketch4.AttachmentOffset = App.Placement(App.Vector(0, 0, -8.6), App.Rotation())
sketch4.addGeometry(Part.Circle(App.Vector(-12, 4, 0), App.Vector(0, 0, 1), 1.3), False)
sketch4.addGeometry(Part.Circle(App.Vector(-4, 4, 0), App.Vector(0, 0, 1), 1.3), False)
sketch4.addGeometry(Part.Circle(App.Vector(4, 4, 0), App.Vector(0, 0, 1), 1.3), False)
sketch4.addGeometry(Part.Circle(App.Vector(12, 4, 0), App.Vector(0, 0, 1), 1.3), False)
sketch4.addGeometry(Part.Circle(App.Vector(-4, -4, 0), App.Vector(0, 0, 1), 1.3), False)
sketch4.addGeometry(Part.Circle(App.Vector(4, -4, 0), App.Vector(0, 0, 1), 1.3), False)
sketch4.addGeometry(Part.Circle(App.Vector(12, -4, 0), App.Vector(0, 0, 1), 1.3), False)
sketch4.addGeometry(Part.Circle(App.Vector(-12, -4, 0), App.Vector(0, 0, 1), 1.3), False)
sketch4.addConstraint(Sketcher.Constraint("Equal", 0, 1))
sketch4.addConstraint(Sketcher.Constraint("Equal", 1, 2))
sketch4.addConstraint(Sketcher.Constraint("Equal", 2, 3))
sketch4.addConstraint(Sketcher.Constraint("Equal", 3, 4))
sketch4.addConstraint(Sketcher.Constraint("Equal", 4, 5))
sketch4.addConstraint(Sketcher.Constraint("Equal", 5, 6))
sketch4.addConstraint(Sketcher.Constraint("Equal", 6, 7))
sketch4.addConstraint(Sketcher.Constraint("Symmetric", 2, 3, 4, 3, -1, 1))
sketch4.addConstraint(Sketcher.Constraint("Symmetric", 1, 3, 5, 3, -1, 1))
sketch4.addConstraint(Sketcher.Constraint("Symmetric", 0, 3, 6, 3, -1, 1))
sketch4.addConstraint(Sketcher.Constraint("Symmetric", 3, 3, 7, 3, -1, 1))
sketch4.addConstraint(Sketcher.Constraint("Symmetric", 1, 3, 2, 3, -2))
sketch4.addConstraint(Sketcher.Constraint("Symmetric", 0, 3, 3, 3, -2))
sketch4.addConstraint(Sketcher.Constraint("Horizontal", 0, 3, 1, 3))
sketch4.addConstraint(Sketcher.Constraint("Diameter", 0, Q("2.6 mm")))
sketch4.addConstraint(Sketcher.Constraint("DistanceX", 0, 3, -1, 1, Q("12 mm")))
sketch4.addConstraint(Sketcher.Constraint("DistanceY", -1, 1, 0, 3, Q("4 mm")))
sketch4.addConstraint(Sketcher.Constraint("DistanceX", 1, 3, -1, 1, Q("4 mm")))
sketch4.setExpression("Constraints[14]", "Params.sketch4_diameter")
pocket2 = body.newObject("PartDesign::Pocket", "Pocket001")
pocket2.Profile = sketch4
pocket2.setExpression("Length", "Params.pocket2_length")

# Sketch on XZ plane
sketch5 = body.newObject("Sketcher::SketchObject", "Sketch004")
sketch5.AttachmentSupport = (doc.getObject("XZ_Plane"), [""])
sketch5.MapMode = "FlatFace"
sketch5.AttachmentOffset = App.Placement(App.Vector(0, 0, -8.6), App.Rotation())
sketch5.addGeometry(Part.Circle(App.Vector(0, 0, 0), App.Vector(0, 0, 1), 3.2), False)
sketch5.addGeometry(Part.Circle(App.Vector(0, 0, 0), App.Vector(0, 0, 1), 2), False)
sketch5.addGeometry(Part.Circle(App.Vector(-8, 0, 0), App.Vector(0, 0, 1), 3.2), False)
sketch5.addGeometry(Part.Circle(App.Vector(-8, 0, 0), App.Vector(0, 0, 1), 2), False)
sketch5.addGeometry(Part.Circle(App.Vector(8, 0, 0), App.Vector(0, 0, 1), 3.2), False)
sketch5.addGeometry(Part.Circle(App.Vector(8, 0, 0), App.Vector(0, 0, 1), 2), False)
sketch5.addConstraint(Sketcher.Constraint("Coincident", 0, 3, -1, 1))
sketch5.addConstraint(Sketcher.Constraint("Coincident", 1, 3, -1, 1))
sketch5.addConstraint(Sketcher.Constraint("Coincident", 3, 3, 2, 3))
sketch5.addConstraint(Sketcher.Constraint("Coincident", 5, 3, 4, 3))
sketch5.addConstraint(Sketcher.Constraint("Equal", 0, 2))
sketch5.addConstraint(Sketcher.Constraint("Equal", 1, 3))
sketch5.addConstraint(Sketcher.Constraint("Equal", 2, 4))
sketch5.addConstraint(Sketcher.Constraint("Equal", 3, 5))
sketch5.addConstraint(Sketcher.Constraint("Symmetric", 2, 3, 4, 3, -1, 1))
sketch5.addConstraint(Sketcher.Constraint("PointOnObject", 2, 3, -1))
sketch5.addConstraint(Sketcher.Constraint("Diameter", 0, Q("6.5 mm")))
sketch5.addConstraint(Sketcher.Constraint("Diameter", 1, Q("4.1 mm")))
sketch5.addConstraint(Sketcher.Constraint("DistanceX", 2, 3, -1, 1, Q("8 mm")))
sketch5.setExpression("Constraints[10]", "Params.sketch5_diameter")
sketch5.setExpression("Constraints[11]", "Params.sketch5_diameter2")
pad3 = body.newObject("PartDesign::Pad", "Pad002")
pad3.Profile = sketch5
pad3.setExpression("Length", "Params.pad3_length")

# Sketch on XZ plane
sketch6 = body.newObject("Sketcher::SketchObject", "Sketch005")
sketch6.AttachmentSupport = (doc.getObject("XZ_Plane"), [""])
sketch6.MapMode = "FlatFace"
sketch6.AttachmentOffset = App.Placement(App.Vector(0, 0, -8.6), App.Rotation())
sketch6.addGeometry(Part.LineSegment(App.Vector(-0.6, 6.7, 0), App.Vector(-0.6, 3.2, 0)), False)
sketch6.addGeometry(Part.ArcOfCircle(Part.Circle(App.Vector(0, 0, 0), App.Vector(0, 0, 1), 3.3), math.radians(80.26), math.radians(99.74)), False)
sketch6.addGeometry(Part.LineSegment(App.Vector(0.6, 3.2, 0), App.Vector(0.6, 6.7, 0)), False)
sketch6.addGeometry(Part.LineSegment(App.Vector(0.6, 6.7, 0), App.Vector(-0.6, 6.7, 0)), False)
sketch6.addGeometry(Part.LineSegment(App.Vector(0.6, -6.7, 0), App.Vector(0.6, -3.2, 0)), False)
sketch6.addGeometry(Part.ArcOfCircle(Part.Circle(App.Vector(0, 0, 0), App.Vector(0, 0, 1), 3.3), math.radians(-99.74), math.radians(-80.26)), False)
sketch6.addGeometry(Part.LineSegment(App.Vector(-0.6, -3.2, 0), App.Vector(-0.6, -6.7, 0)), False)
sketch6.addGeometry(Part.LineSegment(App.Vector(-0.6, -6.7, 0), App.Vector(0.6, -6.7, 0)), False)
sketch6.addConstraint(Sketcher.Constraint("Coincident", 0, 2, 1, 2))
sketch6.addConstraint(Sketcher.Constraint("Coincident", 1, 1, 2, 1))
sketch6.addConstraint(Sketcher.Constraint("Coincident", 2, 2, 3, 1))
sketch6.addConstraint(Sketcher.Constraint("Coincident", 3, 2, 0, 1))
sketch6.addConstraint(Sketcher.Constraint("Coincident", 4, 2, 5, 2))
sketch6.addConstraint(Sketcher.Constraint("Coincident", 5, 1, 6, 1))
sketch6.addConstraint(Sketcher.Constraint("Coincident", 6, 2, 7, 1))
sketch6.addConstraint(Sketcher.Constraint("Coincident", 7, 2, 4, 1))
sketch6.addConstraint(Sketcher.Constraint("Vertical", 0))
sketch6.addConstraint(Sketcher.Constraint("Vertical", 2))
sketch6.addConstraint(Sketcher.Constraint("Horizontal", 3))
sketch6.addConstraint(Sketcher.Constraint("Vertical", 4))
sketch6.addConstraint(Sketcher.Constraint("Vertical", 6))
sketch6.addConstraint(Sketcher.Constraint("Horizontal", 7))
sketch6.addConstraint(Sketcher.Constraint("Coincident", 1, 3, -1, 1))
sketch6.addConstraint(Sketcher.Constraint("Coincident", 5, 3, -1, 1))
sketch6.addConstraint(Sketcher.Constraint("Equal", 1, 5))
sketch6.addConstraint(Sketcher.Constraint("Symmetric", 2, 2, 6, 2, -1, 1))
sketch6.addConstraint(Sketcher.Constraint("Horizontal", 0, 2, 1, 1))
sketch6.addConstraint(Sketcher.Constraint("Horizontal", 4, 2, 5, 1))
sketch6.addConstraint(Sketcher.Constraint("Radius", 1, Q("3.25 mm")))
sketch6.addConstraint(Sketcher.Constraint("DistanceX", 3, 2, 3, 1, Q("1.1 mm")))
sketch6.addConstraint(Sketcher.Constraint("DistanceY", -1, 1, 2, 2, Q("6.7 mm")))
sketch6.setExpression("Constraints[20]", "Params.sketch6_radius")
sketch6.setExpression("Constraints[21]", "Params.sketch6_width")
pad4 = body.newObject("PartDesign::Pad", "Pad003")
pad4.Profile = sketch6
pad4.setExpression("Length", "Params.pad4_length")

doc.recompute()
